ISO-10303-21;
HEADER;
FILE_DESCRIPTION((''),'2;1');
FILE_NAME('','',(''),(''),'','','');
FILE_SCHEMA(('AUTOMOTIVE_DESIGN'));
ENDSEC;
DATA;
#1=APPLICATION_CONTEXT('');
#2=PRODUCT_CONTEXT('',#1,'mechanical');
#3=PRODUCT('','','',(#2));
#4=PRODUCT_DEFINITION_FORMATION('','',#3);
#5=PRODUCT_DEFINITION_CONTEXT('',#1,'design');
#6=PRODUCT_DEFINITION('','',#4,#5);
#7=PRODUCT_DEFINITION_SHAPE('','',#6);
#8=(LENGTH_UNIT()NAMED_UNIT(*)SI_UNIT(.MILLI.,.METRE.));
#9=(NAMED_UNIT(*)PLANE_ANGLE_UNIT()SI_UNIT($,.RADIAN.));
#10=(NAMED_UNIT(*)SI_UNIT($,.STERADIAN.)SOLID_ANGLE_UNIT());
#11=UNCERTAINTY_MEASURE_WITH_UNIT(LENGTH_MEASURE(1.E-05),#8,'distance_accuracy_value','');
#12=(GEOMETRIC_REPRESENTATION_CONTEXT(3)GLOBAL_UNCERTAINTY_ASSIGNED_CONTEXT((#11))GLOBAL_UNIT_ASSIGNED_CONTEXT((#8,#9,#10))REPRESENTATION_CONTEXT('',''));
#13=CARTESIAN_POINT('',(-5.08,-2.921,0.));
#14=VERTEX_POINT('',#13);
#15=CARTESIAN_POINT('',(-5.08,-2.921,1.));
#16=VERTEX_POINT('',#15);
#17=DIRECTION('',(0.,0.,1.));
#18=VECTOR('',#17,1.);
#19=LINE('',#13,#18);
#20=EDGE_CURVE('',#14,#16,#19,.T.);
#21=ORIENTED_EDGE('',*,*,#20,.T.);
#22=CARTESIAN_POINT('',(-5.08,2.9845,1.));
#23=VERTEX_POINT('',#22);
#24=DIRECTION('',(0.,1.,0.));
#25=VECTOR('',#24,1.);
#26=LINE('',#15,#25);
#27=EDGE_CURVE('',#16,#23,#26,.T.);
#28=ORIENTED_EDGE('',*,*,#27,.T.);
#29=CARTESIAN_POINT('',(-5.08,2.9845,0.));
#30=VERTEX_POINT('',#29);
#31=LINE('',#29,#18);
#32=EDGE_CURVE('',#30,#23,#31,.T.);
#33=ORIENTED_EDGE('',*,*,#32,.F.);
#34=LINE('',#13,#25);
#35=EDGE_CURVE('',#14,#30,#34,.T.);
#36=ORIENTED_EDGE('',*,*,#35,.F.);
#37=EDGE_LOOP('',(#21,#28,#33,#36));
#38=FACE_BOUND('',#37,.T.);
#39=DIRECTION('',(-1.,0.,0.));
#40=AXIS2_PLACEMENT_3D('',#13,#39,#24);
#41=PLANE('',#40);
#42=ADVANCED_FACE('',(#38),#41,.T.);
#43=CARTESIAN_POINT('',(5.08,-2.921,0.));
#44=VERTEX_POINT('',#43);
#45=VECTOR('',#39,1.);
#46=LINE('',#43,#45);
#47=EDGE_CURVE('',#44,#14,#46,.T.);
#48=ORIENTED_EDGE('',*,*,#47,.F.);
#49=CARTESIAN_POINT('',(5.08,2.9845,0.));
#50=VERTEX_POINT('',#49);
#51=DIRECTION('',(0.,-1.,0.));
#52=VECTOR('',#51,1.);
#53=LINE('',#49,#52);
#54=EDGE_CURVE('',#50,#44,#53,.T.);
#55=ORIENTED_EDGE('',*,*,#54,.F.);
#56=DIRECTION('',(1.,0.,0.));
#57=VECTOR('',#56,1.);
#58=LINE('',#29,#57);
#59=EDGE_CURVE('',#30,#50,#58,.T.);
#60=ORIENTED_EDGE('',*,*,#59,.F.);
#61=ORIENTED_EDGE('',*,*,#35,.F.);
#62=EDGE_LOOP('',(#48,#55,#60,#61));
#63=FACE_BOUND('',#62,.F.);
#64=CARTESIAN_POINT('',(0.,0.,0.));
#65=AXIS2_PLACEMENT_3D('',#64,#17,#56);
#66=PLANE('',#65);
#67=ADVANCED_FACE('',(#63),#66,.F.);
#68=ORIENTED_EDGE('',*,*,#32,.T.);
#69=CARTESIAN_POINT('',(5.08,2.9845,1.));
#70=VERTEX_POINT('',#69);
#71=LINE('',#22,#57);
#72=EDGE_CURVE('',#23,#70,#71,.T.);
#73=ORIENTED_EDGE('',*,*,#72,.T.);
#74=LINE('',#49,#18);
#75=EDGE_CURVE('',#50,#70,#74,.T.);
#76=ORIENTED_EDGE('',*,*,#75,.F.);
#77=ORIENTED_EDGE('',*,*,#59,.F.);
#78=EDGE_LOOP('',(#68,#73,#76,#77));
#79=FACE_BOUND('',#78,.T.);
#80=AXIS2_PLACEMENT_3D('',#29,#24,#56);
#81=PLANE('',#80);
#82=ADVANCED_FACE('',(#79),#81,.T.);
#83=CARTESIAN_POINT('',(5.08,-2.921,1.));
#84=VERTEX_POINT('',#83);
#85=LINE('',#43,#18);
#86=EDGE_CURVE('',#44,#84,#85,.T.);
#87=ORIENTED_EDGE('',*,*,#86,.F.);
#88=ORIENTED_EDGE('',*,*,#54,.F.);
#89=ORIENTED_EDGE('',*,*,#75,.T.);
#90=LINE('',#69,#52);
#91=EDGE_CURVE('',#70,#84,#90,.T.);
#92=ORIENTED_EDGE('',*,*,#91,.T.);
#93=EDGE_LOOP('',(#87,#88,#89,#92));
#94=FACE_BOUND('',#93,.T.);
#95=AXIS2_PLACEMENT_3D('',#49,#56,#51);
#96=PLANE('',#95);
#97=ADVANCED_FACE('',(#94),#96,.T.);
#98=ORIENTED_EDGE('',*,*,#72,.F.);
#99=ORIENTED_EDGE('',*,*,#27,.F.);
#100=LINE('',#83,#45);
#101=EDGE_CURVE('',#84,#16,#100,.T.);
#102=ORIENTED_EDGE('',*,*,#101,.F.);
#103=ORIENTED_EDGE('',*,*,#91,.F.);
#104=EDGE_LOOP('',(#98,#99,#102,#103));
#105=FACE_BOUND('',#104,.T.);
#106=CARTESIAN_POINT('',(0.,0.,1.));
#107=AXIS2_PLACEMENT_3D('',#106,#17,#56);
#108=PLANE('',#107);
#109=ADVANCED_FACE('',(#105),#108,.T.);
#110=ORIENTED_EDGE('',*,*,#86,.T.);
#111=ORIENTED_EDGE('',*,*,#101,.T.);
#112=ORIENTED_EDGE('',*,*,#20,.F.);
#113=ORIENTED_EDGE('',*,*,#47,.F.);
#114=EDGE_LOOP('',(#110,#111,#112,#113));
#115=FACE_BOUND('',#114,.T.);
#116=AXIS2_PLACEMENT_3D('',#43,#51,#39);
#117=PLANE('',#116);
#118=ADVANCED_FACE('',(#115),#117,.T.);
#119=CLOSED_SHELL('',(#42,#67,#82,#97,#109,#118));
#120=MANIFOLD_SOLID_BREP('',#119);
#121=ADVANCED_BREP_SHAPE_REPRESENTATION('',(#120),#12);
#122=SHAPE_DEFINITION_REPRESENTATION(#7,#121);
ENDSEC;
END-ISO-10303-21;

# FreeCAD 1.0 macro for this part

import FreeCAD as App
import Part
import Sketcher


def add_polygon(sketch, points):
    """Adds a closed chain of lines whose ends are joined by coincident constraints."""
    first, n = sketch.GeometryCount, len(points)
    for a, b in zip(points, points[1:] + points[:1]):
        sketch.addGeometry(Part.LineSegment(App.Vector(*a, 0), App.Vector(*b, 0)), False)
    for i in range(n):
        sketch.addConstraint(Sketcher.Constraint("Coincident", first + i, 2, first + (i + 1) % n, 1))

doc = App.newDocument("Part")
body = doc.addObject("PartDesign::Body", "Body")

# Sketch on XY plane
sketch1 = body.newObject("Sketcher::SketchObject", "Sketch")
sketch1.AttachmentSupport = (doc.getObject("XY_Plane"), [""])
sketch1.MapMode = "FlatFace"
add_polygon(sketch1, [(5, 3), (-5, 3), (-5, -3), (5, -3)])  # lines 0-3
sketch1.addConstraint([
    Sketcher.Constraint("Horizontal", 0),
    Sketcher.Constraint("Vertical", 1),
    Sketcher.Constraint("Horizontal", 2),
    Sketcher.Constraint("Vertical", 3),
    Sketcher.Constraint("DistanceX", 0, 2, 0, 1, 10.16),
    Sketcher.Constraint("DistanceX", 0, 2, -1, 1, 5.08),
    Sketcher.Constraint("DistanceY", 1, 2, 1, 1, 5.9055),
    Sketcher.Constraint("DistanceY", 1, 2, -1, 1, 2.921),
])
pad1 = body.newObject("PartDesign::Pad", "Pad")
pad1.Profile = sketch1
pad1.Length = 1

doc.recompute()
